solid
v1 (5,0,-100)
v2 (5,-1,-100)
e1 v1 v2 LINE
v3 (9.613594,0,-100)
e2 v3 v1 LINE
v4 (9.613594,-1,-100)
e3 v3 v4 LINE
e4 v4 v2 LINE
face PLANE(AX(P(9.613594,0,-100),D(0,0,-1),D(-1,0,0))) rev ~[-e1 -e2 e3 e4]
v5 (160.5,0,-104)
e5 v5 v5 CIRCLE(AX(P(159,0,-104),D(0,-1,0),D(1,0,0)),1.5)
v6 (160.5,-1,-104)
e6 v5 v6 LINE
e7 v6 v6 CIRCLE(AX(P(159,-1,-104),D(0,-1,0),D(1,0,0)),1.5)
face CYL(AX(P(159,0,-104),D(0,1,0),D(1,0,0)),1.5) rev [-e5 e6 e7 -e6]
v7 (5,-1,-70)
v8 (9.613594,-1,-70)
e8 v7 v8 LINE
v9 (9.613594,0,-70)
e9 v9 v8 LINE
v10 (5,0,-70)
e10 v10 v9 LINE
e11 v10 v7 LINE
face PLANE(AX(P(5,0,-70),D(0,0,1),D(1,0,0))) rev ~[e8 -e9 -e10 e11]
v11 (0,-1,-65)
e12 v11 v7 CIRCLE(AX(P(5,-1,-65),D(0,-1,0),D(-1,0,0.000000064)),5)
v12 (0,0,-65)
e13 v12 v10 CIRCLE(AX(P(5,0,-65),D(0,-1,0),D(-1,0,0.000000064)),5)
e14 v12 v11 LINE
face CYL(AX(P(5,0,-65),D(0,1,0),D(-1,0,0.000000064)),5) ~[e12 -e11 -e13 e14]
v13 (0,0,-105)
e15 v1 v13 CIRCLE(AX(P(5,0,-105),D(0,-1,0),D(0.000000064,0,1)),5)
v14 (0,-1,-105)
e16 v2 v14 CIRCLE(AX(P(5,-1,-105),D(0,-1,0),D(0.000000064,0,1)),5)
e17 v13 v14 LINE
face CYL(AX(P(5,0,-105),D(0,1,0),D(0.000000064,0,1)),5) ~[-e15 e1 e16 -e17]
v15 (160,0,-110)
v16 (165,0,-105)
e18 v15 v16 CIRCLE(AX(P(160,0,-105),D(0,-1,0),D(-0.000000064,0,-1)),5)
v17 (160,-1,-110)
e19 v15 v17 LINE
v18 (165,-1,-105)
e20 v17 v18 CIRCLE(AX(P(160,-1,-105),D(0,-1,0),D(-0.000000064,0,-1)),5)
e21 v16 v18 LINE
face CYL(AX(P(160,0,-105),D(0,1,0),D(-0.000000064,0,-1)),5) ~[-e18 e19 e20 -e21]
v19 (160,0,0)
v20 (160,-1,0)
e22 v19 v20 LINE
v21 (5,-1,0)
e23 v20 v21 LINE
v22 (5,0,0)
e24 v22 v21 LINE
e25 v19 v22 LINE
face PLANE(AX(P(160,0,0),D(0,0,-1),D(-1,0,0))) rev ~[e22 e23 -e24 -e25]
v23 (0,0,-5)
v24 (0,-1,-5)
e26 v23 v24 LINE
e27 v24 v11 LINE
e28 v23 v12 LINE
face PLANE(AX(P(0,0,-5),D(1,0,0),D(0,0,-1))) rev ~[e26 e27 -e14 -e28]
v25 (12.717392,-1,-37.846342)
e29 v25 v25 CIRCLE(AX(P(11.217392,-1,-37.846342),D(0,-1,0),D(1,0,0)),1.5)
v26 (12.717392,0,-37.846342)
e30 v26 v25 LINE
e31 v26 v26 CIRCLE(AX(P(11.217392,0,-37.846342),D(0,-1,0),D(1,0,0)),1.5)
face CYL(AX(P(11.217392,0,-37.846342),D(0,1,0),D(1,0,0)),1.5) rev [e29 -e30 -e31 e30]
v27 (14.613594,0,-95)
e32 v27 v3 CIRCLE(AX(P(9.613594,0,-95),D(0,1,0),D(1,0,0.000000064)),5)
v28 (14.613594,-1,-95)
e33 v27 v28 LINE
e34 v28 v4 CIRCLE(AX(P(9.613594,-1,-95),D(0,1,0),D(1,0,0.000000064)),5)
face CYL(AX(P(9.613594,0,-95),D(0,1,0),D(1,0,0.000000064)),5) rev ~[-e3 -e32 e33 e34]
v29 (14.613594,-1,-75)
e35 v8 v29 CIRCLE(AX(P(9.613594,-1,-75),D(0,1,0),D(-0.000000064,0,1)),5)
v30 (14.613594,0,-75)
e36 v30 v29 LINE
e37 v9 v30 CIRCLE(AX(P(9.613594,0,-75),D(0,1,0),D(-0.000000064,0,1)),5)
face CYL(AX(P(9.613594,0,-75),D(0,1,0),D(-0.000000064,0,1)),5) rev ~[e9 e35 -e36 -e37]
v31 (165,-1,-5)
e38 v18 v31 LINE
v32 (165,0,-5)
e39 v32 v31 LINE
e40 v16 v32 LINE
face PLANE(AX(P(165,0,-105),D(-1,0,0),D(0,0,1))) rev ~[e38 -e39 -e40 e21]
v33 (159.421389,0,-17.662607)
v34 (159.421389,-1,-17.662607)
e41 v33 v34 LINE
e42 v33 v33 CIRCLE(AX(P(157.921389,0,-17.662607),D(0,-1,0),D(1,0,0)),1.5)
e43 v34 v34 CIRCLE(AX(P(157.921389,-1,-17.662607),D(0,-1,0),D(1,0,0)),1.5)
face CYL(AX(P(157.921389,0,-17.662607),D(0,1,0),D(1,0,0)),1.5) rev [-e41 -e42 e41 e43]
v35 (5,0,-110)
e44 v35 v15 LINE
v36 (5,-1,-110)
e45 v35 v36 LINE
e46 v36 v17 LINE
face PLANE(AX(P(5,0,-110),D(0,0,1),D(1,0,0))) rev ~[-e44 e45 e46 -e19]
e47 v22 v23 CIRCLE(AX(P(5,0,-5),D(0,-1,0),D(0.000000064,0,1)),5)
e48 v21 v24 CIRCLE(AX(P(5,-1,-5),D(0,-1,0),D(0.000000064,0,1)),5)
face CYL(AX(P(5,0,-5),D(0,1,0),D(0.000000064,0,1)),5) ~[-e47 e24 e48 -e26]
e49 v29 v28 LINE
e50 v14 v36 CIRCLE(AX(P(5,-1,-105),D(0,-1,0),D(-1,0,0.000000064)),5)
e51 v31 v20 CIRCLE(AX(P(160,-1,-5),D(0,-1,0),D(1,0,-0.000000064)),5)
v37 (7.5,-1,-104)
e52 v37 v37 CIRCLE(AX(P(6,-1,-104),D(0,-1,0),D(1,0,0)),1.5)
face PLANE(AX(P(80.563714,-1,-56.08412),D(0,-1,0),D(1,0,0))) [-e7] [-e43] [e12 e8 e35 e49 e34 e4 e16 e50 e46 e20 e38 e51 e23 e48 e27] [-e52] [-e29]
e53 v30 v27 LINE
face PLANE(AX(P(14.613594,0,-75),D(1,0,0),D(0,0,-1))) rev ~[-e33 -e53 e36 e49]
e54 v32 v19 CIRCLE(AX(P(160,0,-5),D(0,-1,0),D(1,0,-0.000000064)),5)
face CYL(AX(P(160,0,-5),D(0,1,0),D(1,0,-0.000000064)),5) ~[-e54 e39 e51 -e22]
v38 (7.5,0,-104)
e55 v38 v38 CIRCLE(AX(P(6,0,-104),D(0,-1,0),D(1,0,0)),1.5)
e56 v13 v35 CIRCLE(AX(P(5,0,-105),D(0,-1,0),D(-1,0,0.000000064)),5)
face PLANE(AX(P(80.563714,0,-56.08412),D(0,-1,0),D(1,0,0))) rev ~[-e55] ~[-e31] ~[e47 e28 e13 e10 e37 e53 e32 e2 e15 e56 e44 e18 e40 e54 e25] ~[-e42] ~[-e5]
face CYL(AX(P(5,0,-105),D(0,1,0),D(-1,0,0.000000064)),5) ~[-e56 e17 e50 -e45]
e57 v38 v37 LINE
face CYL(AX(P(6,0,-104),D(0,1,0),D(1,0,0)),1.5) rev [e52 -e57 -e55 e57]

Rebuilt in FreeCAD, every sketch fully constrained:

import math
import FreeCAD as App
import Part
import Sketcher

doc = App.newDocument("Part")
body = doc.addObject("PartDesign::Body", "Body")

# Sketch on XZ plane
sketch1 = doc.addObject("Sketcher::SketchObject", "Sketch")
body.addObject(sketch1)
sketch1.AttachmentSupport = (doc.XZ_Plane, [""])
sketch1.MapMode = "FlatFace"
sketch1.addGeometry(Part.LineSegment(App.Vector(160, 0, 0), App.Vector(5, 0, 0)), False)
sketch1.addGeometry(Part.ArcOfCircle(Part.Circle(App.Vector(5, -5, 0), App.Vector(0, 0, 1), 5), math.radians(90), math.radians(180)), False)
sketch1.addGeometry(Part.LineSegment(App.Vector(0, -5, 0), App.Vector(0, -65, 0)), False)
sketch1.addGeometry(Part.ArcOfCircle(Part.Circle(App.Vector(5, -65, 0), App.Vector(0, 0, 1), 5), math.radians(180), math.radians(270)), False)
sketch1.addGeometry(Part.LineSegment(App.Vector(5, -70, 0), App.Vector(9.6, -70, 0)), False)
sketch1.addGeometry(Part.ArcOfCircle(Part.Circle(App.Vector(9.6, -75, 0), App.Vector(0, 0, 1), 5), math.radians(0), math.radians(90)), False)
sketch1.addGeometry(Part.LineSegment(App.Vector(14.6, -75, 0), App.Vector(14.6, -95, 0)), False)
sketch1.addGeometry(Part.ArcOfCircle(Part.Circle(App.Vector(9.6, -95, 0), App.Vector(0, 0, 1), 5), math.radians(-90), math.radians(0)), False)
sketch1.addGeometry(Part.LineSegment(App.Vector(9.6, -100, 0), App.Vector(5, -100, 0)), False)
sketch1.addGeometry(Part.ArcOfCircle(Part.Circle(App.Vector(5, -105, 0), App.Vector(0, 0, 1), 5), math.radians(90), math.radians(180)), False)
sketch1.addGeometry(Part.ArcOfCircle(Part.Circle(App.Vector(5, -105, 0), App.Vector(0, 0, 1), 5), math.radians(180), math.radians(270)), False)
sketch1.addGeometry(Part.LineSegment(App.Vector(5, -110, 0), App.Vector(160, -110, 0)), False)
sketch1.addGeometry(Part.ArcOfCircle(Part.Circle(App.Vector(160, -105, 0), App.Vector(0, 0, 1), 5), math.radians(-90), math.radians(0)), False)
sketch1.addGeometry(Part.LineSegment(App.Vector(165, -105, 0), App.Vector(165, -5, 0)), False)
sketch1.addGeometry(Part.ArcOfCircle(Part.Circle(App.Vector(160, -5, 0), App.Vector(0, 0, 1), 5), math.radians(0), math.radians(90)), False)
sketch1.addGeometry(Part.Circle(App.Vector(6, -104, 0), App.Vector(0, 0, 1), 1.5), False)
sketch1.addGeometry(Part.Circle(App.Vector(159, -104, 0), App.Vector(0, 0, 1), 1.5), False)
sketch1.addGeometry(Part.Circle(App.Vector(11.2, -37.8, 0), App.Vector(0, 0, 1), 1.5), False)
sketch1.addGeometry(Part.Circle(App.Vector(157.9, -17.7, 0), App.Vector(0, 0, 1), 1.5), False)
sketch1.addConstraint(Sketcher.Constraint("Tangent", 0, 2, 1, 1))
sketch1.addConstraint(Sketcher.Constraint("Tangent", 1, 2, 2, 1))
sketch1.addConstraint(Sketcher.Constraint("Tangent", 2, 2, 3, 1))
sketch1.addConstraint(Sketcher.Constraint("Tangent", 3, 2, 4, 1))
sketch1.addConstraint(Sketcher.Constraint("Tangent", 4, 2, 5, 2))
sketch1.addConstraint(Sketcher.Constraint("Tangent", 5, 1, 6, 1))
sketch1.addConstraint(Sketcher.Constraint("Tangent", 6, 2, 7, 2))
sketch1.addConstraint(Sketcher.Constraint("Tangent", 7, 1, 8, 1))
sketch1.addConstraint(Sketcher.Constraint("Tangent", 8, 2, 9, 1))
sketch1.addConstraint(Sketcher.Constraint("Tangent", 9, 2, 10, 1))
sketch1.addConstraint(Sketcher.Constraint("Tangent", 10, 2, 11, 1))
sketch1.addConstraint(Sketcher.Constraint("Tangent", 11, 2, 12, 1))
sketch1.addConstraint(Sketcher.Constraint("Tangent", 12, 2, 13, 1))
sketch1.addConstraint(Sketcher.Constraint("Tangent", 13, 2, 14, 1))
sketch1.addConstraint(Sketcher.Constraint("Tangent", 14, 2, 0, 1))
sketch1.addConstraint(Sketcher.Constraint("Horizontal", 0))
sketch1.addConstraint(Sketcher.Constraint("Vertical", 2))
sketch1.addConstraint(Sketcher.Constraint("Horizontal", 4))
sketch1.addConstraint(Sketcher.Constraint("Vertical", 6))
sketch1.addConstraint(Sketcher.Constraint("Horizontal", 8))
sketch1.addConstraint(Sketcher.Constraint("Horizontal", 11))
sketch1.addConstraint(Sketcher.Constraint("Vertical", 13))
sketch1.addConstraint(Sketcher.Constraint("Equal", 1, 3))
sketch1.addConstraint(Sketcher.Constraint("Equal", 3, 5))
sketch1.addConstraint(Sketcher.Constraint("Equal", 5, 7))
sketch1.addConstraint(Sketcher.Constraint("Equal", 7, 9))
sketch1.addConstraint(Sketcher.Constraint("Equal", 9, 10))
sketch1.addConstraint(Sketcher.Constraint("Equal", 10, 12))
sketch1.addConstraint(Sketcher.Constraint("Equal", 12, 14))
sketch1.addConstraint(Sketcher.Constraint("Equal", 15, 16))
sketch1.addConstraint(Sketcher.Constraint("Equal", 16, 17))
sketch1.addConstraint(Sketcher.Constraint("Equal", 17, 18))
sketch1.addConstraint(Sketcher.Constraint("PointOnObject", 0, 2, -1))
sketch1.addConstraint(Sketcher.Constraint("PointOnObject", 1, 2, -2))
sketch1.addConstraint(Sketcher.Constraint("PointOnObject", 9, 2, -2))
sketch1.addConstraint(Sketcher.Constraint("Horizontal", 15, 3, 16, 3))
sketch1.addConstraint(Sketcher.Constraint("Horizontal", 12, 3, 9, 2))
sketch1.addConstraint(Sketcher.Constraint("Diameter", 15, 3.0))
sketch1.addConstraint(Sketcher.Constraint("Radius", 1, 5.0))
sketch1.addConstraint(Sketcher.Constraint("DistanceX", 0, 2, 0, 1, 155.0))
sketch1.addConstraint(Sketcher.Constraint("DistanceY", 2, 2, 2, 1, 60.0))
sketch1.addConstraint(Sketcher.Constraint("DistanceY", 6, 2, 6, 1, 20.0))
sketch1.addConstraint(Sketcher.Constraint("DistanceX", -1, 1, 15, 3, 6.0))
sketch1.addConstraint(Sketcher.Constraint("DistanceY", 15, 3, -1, 1, 104.0))
sketch1.addConstraint(Sketcher.Constraint("DistanceX", -1, 1, 16, 3, 159.0))
sketch1.addConstraint(Sketcher.Constraint("DistanceX", 4, 1, 4, 2, 4.613594))
sketch1.addConstraint(Sketcher.Constraint("DistanceX", -1, 1, 18, 3, 157.921389))
sketch1.addConstraint(Sketcher.Constraint("DistanceY", 3, 3, 17, 3, 27.153658))
sketch1.addConstraint(Sketcher.Constraint("DistanceX", 1, 2, 17, 3, 11.217392))
sketch1.addConstraint(Sketcher.Constraint("DistanceY", 18, 3, -1, 1, 17.662607))
pad1 = doc.addObject("PartDesign::Pad", "Pad")
body.addObject(pad1)
pad1.Profile = sketch1
pad1.Length = 1

doc.recompute()
